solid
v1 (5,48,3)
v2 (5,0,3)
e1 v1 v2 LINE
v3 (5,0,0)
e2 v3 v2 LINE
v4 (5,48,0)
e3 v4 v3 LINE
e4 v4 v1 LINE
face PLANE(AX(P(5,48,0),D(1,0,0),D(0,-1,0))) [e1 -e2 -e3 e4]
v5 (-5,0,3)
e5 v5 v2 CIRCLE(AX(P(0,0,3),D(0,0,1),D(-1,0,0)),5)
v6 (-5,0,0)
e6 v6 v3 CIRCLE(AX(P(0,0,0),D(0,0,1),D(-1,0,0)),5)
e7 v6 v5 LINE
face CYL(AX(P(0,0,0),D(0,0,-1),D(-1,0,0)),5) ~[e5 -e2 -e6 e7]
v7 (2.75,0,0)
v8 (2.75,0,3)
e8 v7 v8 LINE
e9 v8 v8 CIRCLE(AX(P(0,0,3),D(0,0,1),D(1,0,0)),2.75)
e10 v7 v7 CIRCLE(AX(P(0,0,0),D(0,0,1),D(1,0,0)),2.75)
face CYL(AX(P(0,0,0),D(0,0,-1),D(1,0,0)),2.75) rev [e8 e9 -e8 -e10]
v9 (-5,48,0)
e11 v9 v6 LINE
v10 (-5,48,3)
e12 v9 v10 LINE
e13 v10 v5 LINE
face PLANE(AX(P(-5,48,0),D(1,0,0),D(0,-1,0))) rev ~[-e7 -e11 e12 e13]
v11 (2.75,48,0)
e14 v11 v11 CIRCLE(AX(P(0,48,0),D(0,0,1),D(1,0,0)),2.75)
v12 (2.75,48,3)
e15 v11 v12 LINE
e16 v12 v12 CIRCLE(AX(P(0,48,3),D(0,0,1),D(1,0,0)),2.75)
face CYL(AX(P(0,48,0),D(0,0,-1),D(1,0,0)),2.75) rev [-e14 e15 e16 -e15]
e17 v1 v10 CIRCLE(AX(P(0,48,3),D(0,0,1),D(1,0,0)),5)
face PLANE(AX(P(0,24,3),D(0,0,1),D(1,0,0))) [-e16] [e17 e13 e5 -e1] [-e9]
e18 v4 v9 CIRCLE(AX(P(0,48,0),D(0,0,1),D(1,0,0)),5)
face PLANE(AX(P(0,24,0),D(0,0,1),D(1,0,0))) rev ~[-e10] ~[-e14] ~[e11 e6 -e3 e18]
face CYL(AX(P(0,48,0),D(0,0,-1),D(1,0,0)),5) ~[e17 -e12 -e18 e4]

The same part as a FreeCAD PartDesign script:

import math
import FreeCAD as App
import Part
import Sketcher

V = App.Vector
Q = App.Units.Quantity

doc = App.newDocument("Part")
body = doc.addObject("PartDesign::Body", "Body")

# Sketch on XY plane
sketch1 = body.newObject("Sketcher::SketchObject", "Sketch")
sketch1.AttachmentSupport = (doc.getObject("XY_Plane"), [""])
sketch1.MapMode = "FlatFace"
sketch1.addGeometry([
    Part.ArcOfCircle(Part.Circle(V(0, 48, 0), V(0, 0, 1), 5), math.radians(0), math.radians(180)),  # 0
    Part.LineSegment(V(-5, 48, 0), V(-5, 0, 0)),  # 1
    Part.ArcOfCircle(Part.Circle(V(0, 0, 0), V(0, 0, 1), 5), math.radians(180), math.radians(360)),  # 2
    Part.LineSegment(V(5, 0, 0), V(5, 48, 0)),  # 3
    Part.Circle(V(0, 0, 0), V(0, 0, 1), 2.8),  # 4
    Part.Circle(V(0, 48, 0), V(0, 0, 1), 2.8),  # 5
], False)
sketch1.addConstraint([
    Sketcher.Constraint("Tangent", 0, 2, 1, 1),
    Sketcher.Constraint("Tangent", 1, 2, 2, 1),
    Sketcher.Constraint("Tangent", 2, 2, 3, 1),
    Sketcher.Constraint("Tangent", 3, 2, 0, 1),
    Sketcher.Constraint("Vertical", 1),
    Sketcher.Constraint("Vertical", 3),
    Sketcher.Constraint("Coincident", 2, 3, -1, 1),
    Sketcher.Constraint("Coincident", 4, 3, -1, 1),
    Sketcher.Constraint("Coincident", 5, 3, 0, 3),
    Sketcher.Constraint("Equal", 4, 5),
    Sketcher.Constraint("Radius", 0, Q("5 mm")),
    Sketcher.Constraint("Diameter", 4, Q("5.5 mm")),
    Sketcher.Constraint("DistanceY", 1, 2, 1, 1, Q("48 mm")),
])
pad1 = body.newObject("PartDesign::Pad", "Pad")
pad1.Profile = sketch1
pad1.Length = 3

doc.recompute()
